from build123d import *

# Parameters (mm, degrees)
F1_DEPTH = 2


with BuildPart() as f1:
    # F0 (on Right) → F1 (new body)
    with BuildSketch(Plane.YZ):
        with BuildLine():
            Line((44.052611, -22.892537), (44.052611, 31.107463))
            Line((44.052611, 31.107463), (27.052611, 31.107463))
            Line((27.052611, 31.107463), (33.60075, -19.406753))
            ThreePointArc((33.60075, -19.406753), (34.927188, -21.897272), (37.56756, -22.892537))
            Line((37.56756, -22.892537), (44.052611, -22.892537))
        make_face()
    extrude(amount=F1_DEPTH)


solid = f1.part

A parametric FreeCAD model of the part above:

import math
import FreeCAD as App
import Part
import Sketcher

V = App.Vector
Q = App.Units.Quantity

doc = App.newDocument("Part")
body = doc.addObject("PartDesign::Body", "Body")

sketch1 = doc.addObject("Sketcher::SketchObject", "Sketch")
body.addObject(sketch1)
sketch1.AttachmentSupport = (doc.YZ_Plane, [""])
sketch1.MapMode = "FlatFace"
sketch1.addGeometry(Part.LineSegment(V(44.1, -22.9, 0), V(44.1, 31.1, 0)), False)
sketch1.addGeometry(Part.LineSegment(V(44.1, 31.1, 0), V(27.1, 31.1, 0)), False)
sketch1.addGeometry(Part.LineSegment(V(27.1, 31.1, 0), V(33.6, -19.4, 0)), False)
sketch1.addGeometry(Part.ArcOfCircle(Part.Circle(V(37.6, -18.9, 0), V(0, 0, 1), 4), math.radians(-173), math.radians(-90)), False)
sketch1.addGeometry(Part.LineSegment(V(37.6, -22.9, 0), V(44.1, -22.9, 0)), False)
sketch1.addConstraint(Sketcher.Constraint("Coincident", 0, 2, 1, 1))
sketch1.addConstraint(Sketcher.Constraint("Coincident", 1, 2, 2, 1))
sketch1.addConstraint(Sketcher.Constraint("Tangent", 2, 2, 3, 1))
sketch1.addConstraint(Sketcher.Constraint("Tangent", 3, 2, 4, 1))
sketch1.addConstraint(Sketcher.Constraint("Coincident", 4, 2, 0, 1))
sketch1.addConstraint(Sketcher.Constraint("Vertical", 0))
sketch1.addConstraint(Sketcher.Constraint("Horizontal", 1))
sketch1.addConstraint(Sketcher.Constraint("Horizontal", 4))
sketch1.addConstraint(Sketcher.Constraint("Radius", 3, Q("4.000001 mm")))
sketch1.addConstraint(Sketcher.Constraint("DistanceX", 1, 2, 1, 1, Q("17 mm")))
sketch1.addConstraint(Sketcher.Constraint("DistanceY", 0, 1, 0, 2, Q("54 mm")))
sketch1.addConstraint(Sketcher.Constraint("DistanceX", 4, 1, 4, 2, Q("6.485051 mm")))
sketch1.addConstraint(Sketcher.Constraint("DistanceX", -1, 1, 3, 3, Q("37.567561 mm")))
sketch1.addConstraint(Sketcher.Constraint("DistanceY", 3, 3, -1, 1, Q("18.892536 mm")))
pad1 = doc.addObject("PartDesign::Pad", "Pad")
body.addObject(pad1)
pad1.Profile = sketch1
pad1.Length = 2

doc.recompute()
